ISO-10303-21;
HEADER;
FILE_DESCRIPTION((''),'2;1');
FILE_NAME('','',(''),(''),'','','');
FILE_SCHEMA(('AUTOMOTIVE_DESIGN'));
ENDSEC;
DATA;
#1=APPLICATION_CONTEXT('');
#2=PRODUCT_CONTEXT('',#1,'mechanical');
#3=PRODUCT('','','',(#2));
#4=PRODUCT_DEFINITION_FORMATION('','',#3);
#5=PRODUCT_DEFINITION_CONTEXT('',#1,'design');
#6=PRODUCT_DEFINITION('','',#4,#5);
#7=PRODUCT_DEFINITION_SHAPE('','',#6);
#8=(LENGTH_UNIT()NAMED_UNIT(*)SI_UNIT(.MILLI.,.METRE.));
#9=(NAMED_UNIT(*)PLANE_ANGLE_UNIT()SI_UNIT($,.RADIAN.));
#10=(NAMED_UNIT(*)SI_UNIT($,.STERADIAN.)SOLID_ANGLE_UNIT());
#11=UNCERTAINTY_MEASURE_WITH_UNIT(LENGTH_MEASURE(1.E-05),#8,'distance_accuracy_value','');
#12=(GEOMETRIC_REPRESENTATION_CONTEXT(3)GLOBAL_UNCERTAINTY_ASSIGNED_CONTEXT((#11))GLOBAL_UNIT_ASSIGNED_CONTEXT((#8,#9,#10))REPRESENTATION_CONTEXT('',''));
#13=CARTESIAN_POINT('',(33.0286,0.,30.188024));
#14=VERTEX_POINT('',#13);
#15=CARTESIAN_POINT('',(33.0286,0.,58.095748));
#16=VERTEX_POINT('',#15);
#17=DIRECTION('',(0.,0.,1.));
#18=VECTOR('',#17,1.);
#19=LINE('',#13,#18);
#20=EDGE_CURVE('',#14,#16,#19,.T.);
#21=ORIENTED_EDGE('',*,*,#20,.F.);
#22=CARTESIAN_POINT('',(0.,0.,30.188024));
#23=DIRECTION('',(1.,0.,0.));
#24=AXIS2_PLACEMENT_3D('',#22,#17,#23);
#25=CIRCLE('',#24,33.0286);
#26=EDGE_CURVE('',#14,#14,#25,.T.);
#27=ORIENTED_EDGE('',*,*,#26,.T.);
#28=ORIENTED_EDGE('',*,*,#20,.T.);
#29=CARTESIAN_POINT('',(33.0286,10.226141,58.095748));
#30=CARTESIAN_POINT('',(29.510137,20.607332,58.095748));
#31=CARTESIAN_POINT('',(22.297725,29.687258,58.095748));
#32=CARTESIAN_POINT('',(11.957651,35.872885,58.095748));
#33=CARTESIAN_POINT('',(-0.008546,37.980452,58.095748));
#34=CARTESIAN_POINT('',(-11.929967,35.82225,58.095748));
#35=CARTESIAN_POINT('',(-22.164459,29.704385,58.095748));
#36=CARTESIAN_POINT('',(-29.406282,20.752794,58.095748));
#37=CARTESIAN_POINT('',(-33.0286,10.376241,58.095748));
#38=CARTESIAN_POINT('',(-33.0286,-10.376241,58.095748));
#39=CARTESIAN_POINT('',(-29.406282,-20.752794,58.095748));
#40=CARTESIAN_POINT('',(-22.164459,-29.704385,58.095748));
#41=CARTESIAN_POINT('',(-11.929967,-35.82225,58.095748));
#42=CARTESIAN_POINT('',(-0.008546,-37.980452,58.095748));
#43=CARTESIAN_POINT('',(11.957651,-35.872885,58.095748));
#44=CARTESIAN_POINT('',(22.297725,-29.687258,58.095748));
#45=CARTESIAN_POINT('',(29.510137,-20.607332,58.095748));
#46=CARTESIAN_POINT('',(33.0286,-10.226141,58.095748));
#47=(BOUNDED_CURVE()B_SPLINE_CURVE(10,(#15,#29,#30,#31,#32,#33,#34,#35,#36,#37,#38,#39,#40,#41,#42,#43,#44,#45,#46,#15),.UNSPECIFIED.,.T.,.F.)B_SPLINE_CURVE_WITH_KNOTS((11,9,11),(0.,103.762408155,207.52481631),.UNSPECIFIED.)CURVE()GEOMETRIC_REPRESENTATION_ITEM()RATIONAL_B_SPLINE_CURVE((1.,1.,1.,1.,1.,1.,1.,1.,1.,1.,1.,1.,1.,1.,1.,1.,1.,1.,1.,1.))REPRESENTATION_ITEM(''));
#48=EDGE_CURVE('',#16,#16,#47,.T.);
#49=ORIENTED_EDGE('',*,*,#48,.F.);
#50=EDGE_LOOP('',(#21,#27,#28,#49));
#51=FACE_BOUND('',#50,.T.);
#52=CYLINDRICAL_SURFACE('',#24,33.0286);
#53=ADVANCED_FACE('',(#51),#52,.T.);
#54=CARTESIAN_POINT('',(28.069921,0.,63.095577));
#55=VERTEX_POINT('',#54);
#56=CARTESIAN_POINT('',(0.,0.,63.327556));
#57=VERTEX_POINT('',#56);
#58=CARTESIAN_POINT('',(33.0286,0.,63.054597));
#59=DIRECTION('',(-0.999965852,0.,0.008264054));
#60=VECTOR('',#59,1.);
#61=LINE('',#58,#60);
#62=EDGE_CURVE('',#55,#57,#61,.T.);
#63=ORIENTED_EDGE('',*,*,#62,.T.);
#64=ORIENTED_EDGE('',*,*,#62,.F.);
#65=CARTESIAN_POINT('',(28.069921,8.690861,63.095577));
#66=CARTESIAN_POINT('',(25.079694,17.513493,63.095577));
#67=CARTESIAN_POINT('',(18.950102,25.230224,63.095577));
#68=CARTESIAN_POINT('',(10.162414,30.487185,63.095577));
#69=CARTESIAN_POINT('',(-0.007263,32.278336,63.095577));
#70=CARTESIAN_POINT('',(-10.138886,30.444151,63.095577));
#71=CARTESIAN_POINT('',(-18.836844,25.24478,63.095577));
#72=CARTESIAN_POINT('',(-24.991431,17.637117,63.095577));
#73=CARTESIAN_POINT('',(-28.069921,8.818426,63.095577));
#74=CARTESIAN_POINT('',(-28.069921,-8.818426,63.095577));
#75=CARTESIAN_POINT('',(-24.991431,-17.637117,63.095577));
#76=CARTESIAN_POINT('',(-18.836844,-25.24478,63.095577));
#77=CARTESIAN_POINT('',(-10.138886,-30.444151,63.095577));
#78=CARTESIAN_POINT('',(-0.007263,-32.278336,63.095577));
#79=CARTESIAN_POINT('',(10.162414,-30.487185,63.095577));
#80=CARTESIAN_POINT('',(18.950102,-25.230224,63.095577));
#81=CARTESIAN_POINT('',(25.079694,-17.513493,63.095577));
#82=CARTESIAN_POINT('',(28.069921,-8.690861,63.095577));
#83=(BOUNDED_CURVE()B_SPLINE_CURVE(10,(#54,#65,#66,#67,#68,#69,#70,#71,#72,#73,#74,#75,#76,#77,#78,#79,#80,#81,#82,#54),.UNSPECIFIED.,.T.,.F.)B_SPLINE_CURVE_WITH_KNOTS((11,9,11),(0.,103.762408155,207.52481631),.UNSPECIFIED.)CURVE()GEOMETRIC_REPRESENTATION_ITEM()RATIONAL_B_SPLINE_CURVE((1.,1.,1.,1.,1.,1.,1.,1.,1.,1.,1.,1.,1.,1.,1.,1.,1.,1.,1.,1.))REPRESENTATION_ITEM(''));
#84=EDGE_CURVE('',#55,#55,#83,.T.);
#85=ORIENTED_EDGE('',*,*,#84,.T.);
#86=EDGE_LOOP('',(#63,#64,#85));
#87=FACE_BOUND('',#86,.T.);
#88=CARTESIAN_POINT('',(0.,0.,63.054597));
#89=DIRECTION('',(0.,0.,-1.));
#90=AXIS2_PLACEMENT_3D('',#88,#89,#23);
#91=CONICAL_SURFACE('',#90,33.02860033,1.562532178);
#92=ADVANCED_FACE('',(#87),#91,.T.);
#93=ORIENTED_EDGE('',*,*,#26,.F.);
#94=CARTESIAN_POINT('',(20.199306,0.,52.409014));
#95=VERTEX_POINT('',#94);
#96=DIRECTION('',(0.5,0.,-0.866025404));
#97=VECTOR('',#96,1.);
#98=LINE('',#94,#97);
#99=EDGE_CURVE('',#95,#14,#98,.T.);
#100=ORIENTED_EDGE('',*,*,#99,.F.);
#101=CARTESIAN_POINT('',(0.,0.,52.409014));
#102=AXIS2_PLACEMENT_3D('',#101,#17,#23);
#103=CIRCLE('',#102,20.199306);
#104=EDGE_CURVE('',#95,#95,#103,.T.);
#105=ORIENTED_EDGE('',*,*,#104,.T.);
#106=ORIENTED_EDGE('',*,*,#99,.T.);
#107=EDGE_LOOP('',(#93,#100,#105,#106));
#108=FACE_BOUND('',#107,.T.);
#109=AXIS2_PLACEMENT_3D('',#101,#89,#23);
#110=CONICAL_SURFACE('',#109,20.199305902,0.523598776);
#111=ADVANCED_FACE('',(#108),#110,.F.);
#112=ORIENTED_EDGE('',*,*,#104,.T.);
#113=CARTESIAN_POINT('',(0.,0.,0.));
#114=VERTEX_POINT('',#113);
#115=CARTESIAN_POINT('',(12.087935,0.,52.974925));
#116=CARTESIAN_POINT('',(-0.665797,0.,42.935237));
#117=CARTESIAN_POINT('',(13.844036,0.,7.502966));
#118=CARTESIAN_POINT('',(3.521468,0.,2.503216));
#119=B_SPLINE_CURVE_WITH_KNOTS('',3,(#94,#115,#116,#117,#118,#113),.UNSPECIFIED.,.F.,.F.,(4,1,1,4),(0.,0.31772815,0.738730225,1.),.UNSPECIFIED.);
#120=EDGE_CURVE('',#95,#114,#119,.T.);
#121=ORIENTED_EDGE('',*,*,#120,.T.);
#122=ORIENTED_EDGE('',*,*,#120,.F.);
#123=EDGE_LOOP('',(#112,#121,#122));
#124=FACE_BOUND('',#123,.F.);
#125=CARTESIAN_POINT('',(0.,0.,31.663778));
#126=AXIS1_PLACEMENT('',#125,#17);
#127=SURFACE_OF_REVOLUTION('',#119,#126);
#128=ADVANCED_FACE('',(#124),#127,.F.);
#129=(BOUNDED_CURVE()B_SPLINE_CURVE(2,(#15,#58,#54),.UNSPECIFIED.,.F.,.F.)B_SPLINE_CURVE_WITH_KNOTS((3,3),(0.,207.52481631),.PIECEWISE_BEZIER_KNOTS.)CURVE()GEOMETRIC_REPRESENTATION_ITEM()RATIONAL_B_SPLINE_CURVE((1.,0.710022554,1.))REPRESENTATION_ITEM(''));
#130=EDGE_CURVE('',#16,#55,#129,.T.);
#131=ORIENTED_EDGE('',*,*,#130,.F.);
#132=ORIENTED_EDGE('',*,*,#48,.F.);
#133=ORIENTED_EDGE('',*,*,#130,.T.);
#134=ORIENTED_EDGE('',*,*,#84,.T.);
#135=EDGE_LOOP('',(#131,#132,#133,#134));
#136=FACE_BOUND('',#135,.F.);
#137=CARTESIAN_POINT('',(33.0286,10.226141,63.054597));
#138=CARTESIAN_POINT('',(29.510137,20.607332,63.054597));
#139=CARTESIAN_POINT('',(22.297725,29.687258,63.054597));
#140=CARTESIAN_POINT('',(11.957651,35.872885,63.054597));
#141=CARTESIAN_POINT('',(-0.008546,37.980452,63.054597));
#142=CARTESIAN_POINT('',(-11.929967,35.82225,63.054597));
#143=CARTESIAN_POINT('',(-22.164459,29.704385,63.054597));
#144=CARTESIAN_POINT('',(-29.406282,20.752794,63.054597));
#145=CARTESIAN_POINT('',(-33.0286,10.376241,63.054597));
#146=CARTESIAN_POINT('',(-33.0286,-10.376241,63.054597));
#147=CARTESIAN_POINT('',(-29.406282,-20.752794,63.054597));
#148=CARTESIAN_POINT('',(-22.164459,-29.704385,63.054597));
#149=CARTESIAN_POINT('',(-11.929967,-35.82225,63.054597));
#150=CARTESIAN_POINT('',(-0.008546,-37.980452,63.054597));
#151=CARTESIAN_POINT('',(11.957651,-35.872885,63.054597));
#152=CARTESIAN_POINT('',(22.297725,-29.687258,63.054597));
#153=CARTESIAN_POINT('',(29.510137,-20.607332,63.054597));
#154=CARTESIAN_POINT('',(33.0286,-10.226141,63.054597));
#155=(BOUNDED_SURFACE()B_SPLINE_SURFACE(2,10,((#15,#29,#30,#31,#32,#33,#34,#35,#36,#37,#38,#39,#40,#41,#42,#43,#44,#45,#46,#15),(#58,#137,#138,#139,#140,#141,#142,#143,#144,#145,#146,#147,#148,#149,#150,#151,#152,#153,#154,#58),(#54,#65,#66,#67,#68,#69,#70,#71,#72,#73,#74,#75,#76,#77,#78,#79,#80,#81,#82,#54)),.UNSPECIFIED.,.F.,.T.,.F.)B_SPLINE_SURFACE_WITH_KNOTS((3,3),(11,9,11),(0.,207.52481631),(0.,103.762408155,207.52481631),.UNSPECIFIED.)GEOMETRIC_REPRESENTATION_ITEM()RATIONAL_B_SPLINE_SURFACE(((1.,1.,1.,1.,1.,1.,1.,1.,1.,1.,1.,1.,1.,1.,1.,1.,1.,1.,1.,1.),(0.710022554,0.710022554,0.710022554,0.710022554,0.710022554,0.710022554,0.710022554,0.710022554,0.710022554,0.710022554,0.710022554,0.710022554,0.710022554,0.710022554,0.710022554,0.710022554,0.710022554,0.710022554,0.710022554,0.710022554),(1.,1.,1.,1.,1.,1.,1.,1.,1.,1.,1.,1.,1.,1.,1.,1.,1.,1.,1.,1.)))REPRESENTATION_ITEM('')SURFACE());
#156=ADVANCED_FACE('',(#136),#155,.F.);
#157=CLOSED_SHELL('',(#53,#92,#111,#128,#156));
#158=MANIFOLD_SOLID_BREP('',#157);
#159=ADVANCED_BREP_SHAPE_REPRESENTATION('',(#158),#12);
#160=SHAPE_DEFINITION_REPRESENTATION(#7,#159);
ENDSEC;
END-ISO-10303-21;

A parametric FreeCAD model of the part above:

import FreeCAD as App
import Part
import Sketcher
from FreeCAD import Vector
Q = App.Units.Quantity


def edges_at(feature, points):
    """Names of the edges that pass closest to the given points."""
    edges = feature.Shape.Edges
    near = lambda p: min(range(len(edges)), key=lambda i: edges[i].distToShape(Part.Vertex(*p))[0])
    return sorted({f"Edge{near(p) + 1}" for p in points})

doc = App.newDocument("Part")
body = doc.addObject("PartDesign::Body", "Body")

# Sketch on XZ plane
sketch1 = body.newObject("Sketcher::SketchObject", "Sketch")
sketch1.AttachmentSupport = (doc.getObject("XZ_Plane"), [""])
sketch1.MapMode = "FlatFace"
sketch1.addGeometry([
    Part.LineSegment(Vector(0, 63.327556, 0), Vector(0, 0, 0)),  # 0
    Part.BSplineCurve([Vector(20.199306, 52.409014, 0), Vector(12.087935, 52.974925, 0), Vector(-0.665797, 42.935237, 0), Vector(13.844036, 7.502966, 0), Vector(3.521468, 2.503216, 0), Vector(0, 0, 0)], [4, 1, 1, 4], [0, 0.31772815, 0.738730225, 1], False, 3, [1, 1, 1, 1, 1, 1], False),  # 1
    Part.LineSegment(Vector(20.199306, 52.409014, 0), Vector(33.0286, 30.188024, 0)),  # 2
    Part.LineSegment(Vector(33.0286, 30.188024, 0), Vector(33.0286, 63.054597, 0)),  # 3
    Part.LineSegment(Vector(33.0286, 63.054597, 0), Vector(0, 63.327556, 0)),  # 4
], False)
sketch1.addConstraint([
    Sketcher.Constraint("Block", 1),
    Sketcher.Constraint("Coincident", 0, 2, 1, 2),
    Sketcher.Constraint("Coincident", 1, 1, 2, 1),
    Sketcher.Constraint("Coincident", 2, 2, 3, 1),
    Sketcher.Constraint("Coincident", 3, 2, 4, 1),
    Sketcher.Constraint("Coincident", 4, 2, 0, 1),
    Sketcher.Constraint("Vertical", 0),
    Sketcher.Constraint("Vertical", 3),
    Sketcher.Constraint("Angle", 2, Q("-60 deg")),
    Sketcher.Constraint("DistanceX", -1, 1, 2, 2, 33.0286),
    Sketcher.Constraint("Distance", 4, 33.029728),
    Sketcher.Constraint("DistanceY", 0, 2, 0, 1, 63.327556),
])
revolution = body.newObject("PartDesign::Revolution", "Revolution")
revolution.Profile = sketch1
revolution.ReferenceAxis = (sketch1, ["V_Axis"])
revolution.Angle = 360
doc.recompute()

fillet = body.newObject("PartDesign::Fillet", "Fillet")
fillet.Base = (revolution, edges_at(revolution, [(-33.029, 0, 63.055), (16.514, 0, 63.191)]))
fillet.Radius = 5

doc.recompute()
